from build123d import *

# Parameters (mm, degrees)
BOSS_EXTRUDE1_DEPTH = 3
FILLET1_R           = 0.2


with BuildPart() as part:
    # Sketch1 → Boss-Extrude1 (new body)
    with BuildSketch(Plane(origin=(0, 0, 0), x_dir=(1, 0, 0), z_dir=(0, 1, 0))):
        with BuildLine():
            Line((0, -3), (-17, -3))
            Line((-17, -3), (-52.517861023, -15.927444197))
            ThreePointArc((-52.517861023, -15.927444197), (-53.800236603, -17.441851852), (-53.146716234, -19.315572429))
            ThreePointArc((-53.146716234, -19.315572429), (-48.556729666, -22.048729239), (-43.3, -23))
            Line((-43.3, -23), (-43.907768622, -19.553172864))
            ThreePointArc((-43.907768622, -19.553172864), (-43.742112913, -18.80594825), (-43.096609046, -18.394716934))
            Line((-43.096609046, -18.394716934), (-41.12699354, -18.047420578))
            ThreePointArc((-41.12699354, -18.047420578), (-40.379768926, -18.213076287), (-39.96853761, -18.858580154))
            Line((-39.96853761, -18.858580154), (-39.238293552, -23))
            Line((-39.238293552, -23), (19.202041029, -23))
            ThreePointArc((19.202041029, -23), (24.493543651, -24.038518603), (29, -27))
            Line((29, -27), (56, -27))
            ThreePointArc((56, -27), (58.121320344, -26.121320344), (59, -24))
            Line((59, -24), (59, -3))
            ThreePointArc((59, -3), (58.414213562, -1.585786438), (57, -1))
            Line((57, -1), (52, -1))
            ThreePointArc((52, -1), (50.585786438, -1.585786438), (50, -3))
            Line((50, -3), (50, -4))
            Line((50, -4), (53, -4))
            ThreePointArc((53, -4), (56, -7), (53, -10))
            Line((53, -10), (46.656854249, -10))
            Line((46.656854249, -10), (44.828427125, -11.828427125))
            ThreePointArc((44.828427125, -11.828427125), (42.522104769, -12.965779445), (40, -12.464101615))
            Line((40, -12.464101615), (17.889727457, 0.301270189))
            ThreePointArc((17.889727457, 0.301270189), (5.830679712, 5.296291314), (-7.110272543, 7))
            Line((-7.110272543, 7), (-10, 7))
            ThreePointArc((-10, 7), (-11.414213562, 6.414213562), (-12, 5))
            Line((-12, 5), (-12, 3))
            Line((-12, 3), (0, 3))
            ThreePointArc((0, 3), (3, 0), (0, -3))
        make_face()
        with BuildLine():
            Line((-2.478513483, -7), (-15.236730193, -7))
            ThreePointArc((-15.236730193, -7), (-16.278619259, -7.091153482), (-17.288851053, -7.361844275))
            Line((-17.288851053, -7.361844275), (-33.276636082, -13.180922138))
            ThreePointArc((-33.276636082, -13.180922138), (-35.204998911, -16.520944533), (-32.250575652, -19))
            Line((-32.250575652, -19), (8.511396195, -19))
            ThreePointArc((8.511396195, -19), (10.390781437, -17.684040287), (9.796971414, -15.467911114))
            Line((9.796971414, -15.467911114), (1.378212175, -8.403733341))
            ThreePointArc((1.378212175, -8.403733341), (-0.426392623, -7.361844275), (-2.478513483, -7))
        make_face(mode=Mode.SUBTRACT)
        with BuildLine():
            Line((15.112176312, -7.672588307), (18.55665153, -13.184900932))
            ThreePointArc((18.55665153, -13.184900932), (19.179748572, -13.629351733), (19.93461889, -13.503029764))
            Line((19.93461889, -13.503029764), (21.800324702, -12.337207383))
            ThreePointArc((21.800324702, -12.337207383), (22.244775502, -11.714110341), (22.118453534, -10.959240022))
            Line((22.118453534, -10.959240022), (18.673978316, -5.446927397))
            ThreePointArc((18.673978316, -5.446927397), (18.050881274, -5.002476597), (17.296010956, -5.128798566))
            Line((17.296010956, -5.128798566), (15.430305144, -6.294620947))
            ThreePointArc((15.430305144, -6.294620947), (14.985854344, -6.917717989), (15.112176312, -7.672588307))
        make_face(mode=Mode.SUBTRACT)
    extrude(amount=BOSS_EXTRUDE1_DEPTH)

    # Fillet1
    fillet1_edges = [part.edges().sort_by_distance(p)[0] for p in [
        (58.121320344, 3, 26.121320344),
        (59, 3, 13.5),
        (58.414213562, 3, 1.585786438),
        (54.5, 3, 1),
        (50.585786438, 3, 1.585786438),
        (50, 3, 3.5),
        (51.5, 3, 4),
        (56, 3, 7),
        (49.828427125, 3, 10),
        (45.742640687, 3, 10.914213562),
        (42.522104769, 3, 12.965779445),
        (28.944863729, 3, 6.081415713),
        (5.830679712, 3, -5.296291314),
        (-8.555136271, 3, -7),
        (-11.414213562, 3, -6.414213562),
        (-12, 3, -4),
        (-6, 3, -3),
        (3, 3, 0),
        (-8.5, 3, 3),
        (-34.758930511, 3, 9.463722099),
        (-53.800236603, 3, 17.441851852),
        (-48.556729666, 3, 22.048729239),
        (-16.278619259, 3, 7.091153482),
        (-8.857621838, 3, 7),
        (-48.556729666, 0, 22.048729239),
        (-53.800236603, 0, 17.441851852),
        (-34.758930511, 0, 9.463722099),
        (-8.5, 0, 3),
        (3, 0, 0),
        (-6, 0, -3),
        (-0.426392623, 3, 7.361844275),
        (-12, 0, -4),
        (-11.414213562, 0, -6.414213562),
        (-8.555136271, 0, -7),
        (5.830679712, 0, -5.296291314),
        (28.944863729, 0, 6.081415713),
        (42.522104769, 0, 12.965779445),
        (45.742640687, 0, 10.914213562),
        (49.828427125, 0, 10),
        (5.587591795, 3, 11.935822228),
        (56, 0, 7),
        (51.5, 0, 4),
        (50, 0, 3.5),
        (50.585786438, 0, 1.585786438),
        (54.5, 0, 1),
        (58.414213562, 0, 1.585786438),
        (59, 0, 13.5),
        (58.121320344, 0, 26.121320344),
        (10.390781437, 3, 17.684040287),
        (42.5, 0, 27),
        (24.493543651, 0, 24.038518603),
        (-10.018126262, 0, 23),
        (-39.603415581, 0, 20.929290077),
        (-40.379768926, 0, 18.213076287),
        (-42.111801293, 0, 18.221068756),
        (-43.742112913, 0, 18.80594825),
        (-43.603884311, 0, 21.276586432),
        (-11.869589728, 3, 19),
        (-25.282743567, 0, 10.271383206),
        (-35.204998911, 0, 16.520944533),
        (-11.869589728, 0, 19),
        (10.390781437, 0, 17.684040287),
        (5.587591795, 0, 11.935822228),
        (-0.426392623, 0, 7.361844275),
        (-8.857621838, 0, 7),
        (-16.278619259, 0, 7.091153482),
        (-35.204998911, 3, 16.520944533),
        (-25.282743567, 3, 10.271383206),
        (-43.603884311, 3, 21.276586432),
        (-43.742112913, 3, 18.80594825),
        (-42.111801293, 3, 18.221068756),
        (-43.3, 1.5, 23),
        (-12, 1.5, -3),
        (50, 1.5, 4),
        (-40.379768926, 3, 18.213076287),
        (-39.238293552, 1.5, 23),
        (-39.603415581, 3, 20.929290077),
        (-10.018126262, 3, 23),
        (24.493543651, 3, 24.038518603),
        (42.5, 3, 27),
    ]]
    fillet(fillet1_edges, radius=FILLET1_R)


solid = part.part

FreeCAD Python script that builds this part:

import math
import FreeCAD as App
import Part
import Sketcher

V = App.Vector
Q = App.Units.Quantity


def edges_at(feature, points):
    """Names of the edges that pass closest to the given points."""
    edges = feature.Shape.Edges
    near = lambda p: min(range(len(edges)), key=lambda i: edges[i].distToShape(Part.Vertex(*p))[0])
    return sorted({f"Edge{near(p) + 1}" for p in points})

doc = App.newDocument("Part")
body = doc.addObject("PartDesign::Body", "Body")

sketch1 = body.newObject("Sketcher::SketchObject", "Sketch")
sketch1.AttachmentSupport = (doc.getObject("XZ_Plane"), [""])
sketch1.MapMode = "FlatFace"
sketch1.addGeometry([
    Part.LineSegment(V(0, 3, 0), V(-17, 3, 0)),
    Part.LineSegment(V(-17, 3, 0), V(-52.5, 15.9, 0)),
    Part.ArcOfCircle(Part.Circle(V(-51.8, 17.8, 0), V(0, 0, 1), 2), math.radians(131), math.radians(250)),
    Part.ArcOfCircle(Part.Circle(V(-43.3, 8, 0), V(0, 0, 1), 15), math.radians(90), math.radians(131)),
    Part.LineSegment(V(-43.3, 23, 0), V(-43.9, 19.6, 0)),
    Part.ArcOfCircle(Part.Circle(V(-42.9, 19.4, 0), V(0, 0, 1), 1), math.radians(170), math.radians(260)),
    Part.LineSegment(V(-43.1, 18.4, 0), V(-41.1, 18, 0)),
    Part.ArcOfCircle(Part.Circle(V(-41, 19, 0), V(0, 0, 1), 1), math.radians(-100), math.radians(-10)),
    Part.LineSegment(V(-40, 18.9, 0), V(-39.2, 23, 0)),
    Part.LineSegment(V(-39.2, 23, 0), V(19.2, 23, 0)),
    Part.ArcOfCircle(Part.Circle(V(19.2, 37, 0), V(0, 0, 1), 14), math.radians(-90), math.radians(-46)),
    Part.LineSegment(V(29, 27, 0), V(56, 27, 0)),
    Part.ArcOfCircle(Part.Circle(V(56, 24, 0), V(0, 0, 1), 3), math.radians(0), math.radians(90)),
    Part.LineSegment(V(59, 24, 0), V(59, 3, 0)),
    Part.ArcOfCircle(Part.Circle(V(57, 3, 0), V(0, 0, 1), 2), math.radians(-90), math.radians(0)),
    Part.LineSegment(V(57, 1, 0), V(52, 1, 0)),
    Part.ArcOfCircle(Part.Circle(V(52, 3, 0), V(0, 0, 1), 2), math.radians(-180), math.radians(-90)),
    Part.LineSegment(V(50, 3, 0), V(50, 4, 0)),
    Part.LineSegment(V(50, 4, 0), V(53, 4, 0)),
    Part.ArcOfCircle(Part.Circle(V(53, 7, 0), V(0, 0, 1), 3), math.radians(-90), math.radians(90)),
    Part.LineSegment(V(53, 10, 0), V(46.7, 10, 0)),
    Part.LineSegment(V(46.7, 10, 0), V(44.8, 11.8, 0)),
    Part.ArcOfCircle(Part.Circle(V(42, 9, 0), V(0, 0, 1), 4), math.radians(45), math.radians(120)),
    Part.LineSegment(V(40, 12.5, 0), V(17.9, -0.3, 0)),
    Part.ArcOfCircle(Part.Circle(V(-7.1, 43, 0), V(0, 0, 1), 50), math.radians(-90), math.radians(-60)),
    Part.LineSegment(V(-7.1, -7, 0), V(-10, -7, 0)),
    Part.ArcOfCircle(Part.Circle(V(-10, -5, 0), V(0, 0, 1), 2), math.radians(-180), math.radians(-90)),
    Part.LineSegment(V(-12, -5, 0), V(-12, -3, 0)),
    Part.LineSegment(V(-12, -3, 0), V(0, -3, 0)),
    Part.ArcOfCircle(Part.Circle(V(0, 0, 0), V(0, 0, 1), 3), math.radians(-90), math.radians(90)),
    Part.LineSegment(V(-15.2, 7, 0), V(-2.5, 7, 0)),
    Part.ArcOfCircle(Part.Circle(V(-2.5, 13, 0), V(0, 0, 1), 6), math.radians(-90), math.radians(-50)),
    Part.LineSegment(V(1.4, 8.4, 0), V(9.8, 15.5, 0)),
    Part.ArcOfCircle(Part.Circle(V(8.5, 17, 0), V(0, 0, 1), 2), math.radians(-50), math.radians(90)),
    Part.LineSegment(V(8.5, 19, 0), V(-32.3, 19, 0)),
    Part.ArcOfCircle(Part.Circle(V(-32.3, 16, 0), V(0, 0, 1), 3), math.radians(90), math.radians(250)),
    Part.LineSegment(V(-33.3, 13.2, 0), V(-17.3, 7.4, 0)),
    Part.ArcOfCircle(Part.Circle(V(-15.2, 13, 0), V(0, 0, 1), 6), math.radians(-110), math.radians(-90)),
    Part.LineSegment(V(18.6, 13.2, 0), V(15.1, 7.7, 0)),
    Part.ArcOfCircle(Part.Circle(V(16, 7.1, 0), V(0, 0, 1), 1), math.radians(148), math.radians(238)),
    Part.LineSegment(V(15.4, 6.3, 0), V(17.3, 5.1, 0)),
    Part.ArcOfCircle(Part.Circle(V(17.8, 6, 0), V(0, 0, 1), 1), math.radians(-122), math.radians(-32)),
    Part.LineSegment(V(18.7, 5.4, 0), V(22.1, 11, 0)),
    Part.ArcOfCircle(Part.Circle(V(21.3, 11.5, 0), V(0, 0, 1), 1), math.radians(-32), math.radians(58)),
    Part.LineSegment(V(21.8, 12.3, 0), V(19.9, 13.5, 0)),
    Part.ArcOfCircle(Part.Circle(V(19.4, 12.7, 0), V(0, 0, 1), 1), math.radians(58), math.radians(148)),
], False)
sketch1.addConstraint([
    Sketcher.Constraint("Coincident", 0, 2, 1, 1),
    Sketcher.Constraint("Tangent", 1, 2, 2, 2),
    Sketcher.Constraint("Tangent", 2, 1, 3, 2),
    Sketcher.Constraint("Coincident", 3, 1, 4, 1),
    Sketcher.Constraint("Tangent", 4, 2, 5, 1),
    Sketcher.Constraint("Tangent", 5, 2, 6, 1),
    Sketcher.Constraint("Tangent", 6, 2, 7, 1),
    Sketcher.Constraint("Tangent", 7, 2, 8, 1),
    Sketcher.Constraint("Coincident", 8, 2, 9, 1),
    Sketcher.Constraint("Tangent", 9, 2, 10, 1),
    Sketcher.Constraint("Coincident", 10, 2, 11, 1),
    Sketcher.Constraint("Tangent", 11, 2, 12, 2),
    Sketcher.Constraint("Tangent", 12, 1, 13, 1),
    Sketcher.Constraint("Tangent", 13, 2, 14, 2),
    Sketcher.Constraint("Tangent", 14, 1, 15, 1),
    Sketcher.Constraint("Tangent", 15, 2, 16, 2),
    Sketcher.Constraint("Tangent", 16, 1, 17, 1),
    Sketcher.Constraint("Coincident", 17, 2, 18, 1),
    Sketcher.Constraint("Tangent", 18, 2, 19, 1),
    Sketcher.Constraint("Tangent", 19, 2, 20, 1),
    Sketcher.Constraint("Coincident", 20, 2, 21, 1),
    Sketcher.Constraint("Tangent", 21, 2, 22, 1),
    Sketcher.Constraint("Tangent", 22, 2, 23, 1),
    Sketcher.Constraint("Tangent", 23, 2, 24, 2),
    Sketcher.Constraint("Tangent", 24, 1, 25, 1),
    Sketcher.Constraint("Tangent", 25, 2, 26, 2),
    Sketcher.Constraint("Tangent", 26, 1, 27, 1),
    Sketcher.Constraint("Coincident", 27, 2, 28, 1),
    Sketcher.Constraint("Tangent", 28, 2, 29, 1),
    Sketcher.Constraint("Tangent", 29, 2, 0, 1),
    Sketcher.Constraint("Tangent", 30, 2, 31, 1),
    Sketcher.Constraint("Tangent", 31, 2, 32, 1),
    Sketcher.Constraint("Tangent", 32, 2, 33, 1),
    Sketcher.Constraint("Tangent", 33, 2, 34, 1),
    Sketcher.Constraint("Tangent", 34, 2, 35, 1),
    Sketcher.Constraint("Tangent", 35, 2, 36, 1),
    Sketcher.Constraint("Tangent", 36, 2, 37, 1),
    Sketcher.Constraint("Tangent", 37, 2, 30, 1),
    Sketcher.Constraint("Tangent", 38, 2, 39, 1),
    Sketcher.Constraint("Tangent", 39, 2, 40, 1),
    Sketcher.Constraint("Tangent", 40, 2, 41, 1),
    Sketcher.Constraint("Tangent", 41, 2, 42, 1),
    Sketcher.Constraint("Tangent", 42, 2, 43, 1),
    Sketcher.Constraint("Tangent", 43, 2, 44, 1),
    Sketcher.Constraint("Tangent", 44, 2, 45, 1),
    Sketcher.Constraint("Tangent", 45, 2, 38, 1),
    Sketcher.Constraint("Horizontal", 0),
    Sketcher.Constraint("Horizontal", 9),
    Sketcher.Constraint("Horizontal", 11),
    Sketcher.Constraint("Vertical", 13),
    Sketcher.Constraint("Horizontal", 15),
    Sketcher.Constraint("Vertical", 17),
    Sketcher.Constraint("Horizontal", 18),
    Sketcher.Constraint("Horizontal", 20),
    Sketcher.Constraint("Horizontal", 25),
    Sketcher.Constraint("Vertical", 27),
    Sketcher.Constraint("Horizontal", 28),
    Sketcher.Constraint("Horizontal", 30),
    Sketcher.Constraint("Horizontal", 34),
    Sketcher.Constraint("Coincident", 29, 3, -1, 1),
    Sketcher.Constraint("Equal", 5, 7),
    Sketcher.Constraint("Equal", 2, 14),
    Sketcher.Constraint("Equal", 14, 16),
    Sketcher.Constraint("Equal", 12, 19),
    Sketcher.Constraint("Equal", 16, 26),
    Sketcher.Constraint("Equal", 19, 29),
    Sketcher.Constraint("Equal", 26, 33),
    Sketcher.Constraint("Equal", 29, 35),
    Sketcher.Constraint("Equal", 31, 37),
    Sketcher.Constraint("Equal", 7, 39),
    Sketcher.Constraint("Equal", 39, 41),
    Sketcher.Constraint("Equal", 41, 43),
    Sketcher.Constraint("Equal", 43, 45),
    Sketcher.Constraint("Perpendicular", 4, 6),
    Sketcher.Constraint("Perpendicular", 6, 8),
    Sketcher.Constraint("Parallel", 1, 36),
    Sketcher.Constraint("Perpendicular", 38, 40),
    Sketcher.Constraint("Perpendicular", 40, 42),
    Sketcher.Constraint("Perpendicular", 42, 44),
    Sketcher.Constraint("Horizontal", 16, 3, 0, 2),
    Sketcher.Constraint("Horizontal", 3, 1, 8, 2),
    Sketcher.Constraint("Horizontal", 19, 3, 30, 2),
    Sketcher.Constraint("Radius", 2, Q("2 mm")),
    Sketcher.Constraint("Radius", 3, Q("15 mm")),
    Sketcher.Constraint("Radius", 5, Q("1 mm")),
    Sketcher.Constraint("Radius", 10, Q("14 mm")),
    Sketcher.Constraint("Radius", 12, Q("3 mm")),
    Sketcher.Constraint("Radius", 22, Q("4 mm")),
    Sketcher.Constraint("Radius", 24, Q("50 mm")),
    Sketcher.Constraint("Radius", 31, Q("6 mm")),
    Sketcher.Constraint("DistanceX", 0, 2, 0, 1, Q("17 mm")),
    Sketcher.Constraint("DistanceX", 11, 1, 11, 2, Q("27 mm")),
    Sketcher.Constraint("DistanceX", 15, 2, 15, 1, Q("5 mm")),
    Sketcher.Constraint("DistanceX", 18, 1, 18, 2, Q("3 mm")),
    Sketcher.Constraint("DistanceX", 28, 1, 28, 2, Q("12 mm")),
    Sketcher.Constraint("DistanceY", 13, 2, 13, 1, Q("21 mm")),
    Sketcher.Constraint("DistanceY", 17, 1, 17, 2, Q("1 mm")),
    Sketcher.Constraint("DistanceY", 27, 1, 27, 2, Q("2 mm")),
    Sketcher.Constraint("Angle", 1, Q("160 deg")),
    Sketcher.Constraint("Angle", 4, Q("-100 deg")),
    Sketcher.Constraint("Angle", 21, Q("135 deg")),
    Sketcher.Constraint("Angle", 23, Q("-150 deg")),
    Sketcher.Constraint("Angle", 32, Q("40 deg")),
    Sketcher.Constraint("Angle", 38, Q("-122 deg")),
    Sketcher.Constraint("Distance", 6, Q("2 mm")),
    Sketcher.Constraint("DistanceY", -1, 1, 3, 3, Q("8 mm")),
    Sketcher.Constraint("DistanceX", -1, 1, 12, 3, Q("56 mm")),
    Sketcher.Constraint("DistanceX", -1, 1, 22, 3, Q("42 mm")),
    Sketcher.Constraint("DistanceY", -1, 1, 22, 3, Q("9 mm")),
    Sketcher.Constraint("DistanceY", -1, 1, 33, 3, Q("17 mm")),
    Sketcher.Constraint("Distance", 4, Q("3.5 mm")),
    Sketcher.Constraint("Distance", 38, Q("6.5 mm")),
    Sketcher.Constraint("Distance", 40, Q("2.2 mm")),
    Sketcher.Constraint("DistanceX", 3, 3, -1, 1, Q("43.3 mm")),
    Sketcher.Constraint("DistanceX", 3, 1, -1, 1, Q("43.3 mm")),
    Sketcher.Constraint("DistanceX", 34, 2, 34, 1, Q("40.761972 mm")),
    Sketcher.Constraint("DistanceX", -1, 1, 45, 3, Q("19.4047 mm")),
    Sketcher.Constraint("DistanceY", -1, 1, 40, 2, Q("5.128799 mm")),
    Sketcher.Constraint("DistanceX", 37, 3, -1, 1, Q("15.23673 mm")),
])
pad1 = body.newObject("PartDesign::Pad", "Pad")
pad1.Profile = sketch1
pad1.Length = 3
pad1.Reversed = True
doc.recompute()

fillet = body.newObject("PartDesign::Fillet", "Fillet")
fillet.Base = (pad1, edges_at(pad1, [
    (58.121, 3, 26.121),
    (59, 3, 13.5),
    (58.414, 3, 1.586),
    (54.5, 3, 1),
    (50.586, 3, 1.586),
    (50, 3, 3.5),
    (51.5, 3, 4),
    (56, 3, 7),
    (49.828, 3, 10),
    (45.743, 3, 10.914),
    (42.522, 3, 12.966),
    (28.945, 3, 6.081),
    (5.831, 3, -5.296),
    (-8.555, 3, -7),
    (-11.414, 3, -6.414),
    (-12, 3, -4),
    (-6, 3, -3),
    (3, 3, 0),
    (-8.5, 3, 3),
    (-34.759, 3, 9.464),
    (-53.8, 3, 17.442),
    (-48.557, 3, 22.049),
    (-16.279, 3, 7.091),
    (-8.858, 3, 7),
    (-48.557, 0, 22.049),
    (-53.8, 0, 17.442),
    (-34.759, 0, 9.464),
    (-8.5, 0, 3),
    (3, 0, 0),
    (-6, 0, -3),
    (-0.426, 3, 7.362),
    (-12, 0, -4),
    (-11.414, 0, -6.414),
    (-8.555, 0, -7),
    (5.831, 0, -5.296),
    (28.945, 0, 6.081),
    (42.522, 0, 12.966),
    (45.743, 0, 10.914),
    (49.828, 0, 10),
    (5.588, 3, 11.936),
    (56, 0, 7),
    (51.5, 0, 4),
    (50, 0, 3.5),
    (50.586, 0, 1.586),
    (54.5, 0, 1),
    (58.414, 0, 1.586),
    (59, 0, 13.5),
    (58.121, 0, 26.121),
    (10.391, 3, 17.684),
    (42.5, 0, 27),
    (24.494, 0, 24.039),
    (-10.018, 0, 23),
    (-39.603, 0, 20.929),
    (-40.38, 0, 18.213),
    (-42.112, 0, 18.221),
    (-43.742, 0, 18.806),
    (-43.604, 0, 21.277),
    (-11.87, 3, 19),
    (-25.283, 0, 10.271),
    (-35.205, 0, 16.521),
    (-11.87, 0, 19),
    (10.391, 0, 17.684),
    (5.588, 0, 11.936),
    (-0.426, 0, 7.362),
    (-8.858, 0, 7),
    (-16.279, 0, 7.091),
    (-35.205, 3, 16.521),
    (-25.283, 3, 10.271),
    (-43.604, 3, 21.277),
    (-43.742, 3, 18.806),
    (-42.112, 3, 18.221),
    (-43.3, 1.5, 23),
    (-12, 1.5, -3),
    (50, 1.5, 4),
    (-40.38, 3, 18.213),
    (-39.238, 1.5, 23),
    (-39.603, 3, 20.929),
    (-10.018, 3, 23),
    (24.494, 3, 24.039),
    (42.5, 3, 27),
]))
fillet.Radius = 0.2

doc.recompute()
